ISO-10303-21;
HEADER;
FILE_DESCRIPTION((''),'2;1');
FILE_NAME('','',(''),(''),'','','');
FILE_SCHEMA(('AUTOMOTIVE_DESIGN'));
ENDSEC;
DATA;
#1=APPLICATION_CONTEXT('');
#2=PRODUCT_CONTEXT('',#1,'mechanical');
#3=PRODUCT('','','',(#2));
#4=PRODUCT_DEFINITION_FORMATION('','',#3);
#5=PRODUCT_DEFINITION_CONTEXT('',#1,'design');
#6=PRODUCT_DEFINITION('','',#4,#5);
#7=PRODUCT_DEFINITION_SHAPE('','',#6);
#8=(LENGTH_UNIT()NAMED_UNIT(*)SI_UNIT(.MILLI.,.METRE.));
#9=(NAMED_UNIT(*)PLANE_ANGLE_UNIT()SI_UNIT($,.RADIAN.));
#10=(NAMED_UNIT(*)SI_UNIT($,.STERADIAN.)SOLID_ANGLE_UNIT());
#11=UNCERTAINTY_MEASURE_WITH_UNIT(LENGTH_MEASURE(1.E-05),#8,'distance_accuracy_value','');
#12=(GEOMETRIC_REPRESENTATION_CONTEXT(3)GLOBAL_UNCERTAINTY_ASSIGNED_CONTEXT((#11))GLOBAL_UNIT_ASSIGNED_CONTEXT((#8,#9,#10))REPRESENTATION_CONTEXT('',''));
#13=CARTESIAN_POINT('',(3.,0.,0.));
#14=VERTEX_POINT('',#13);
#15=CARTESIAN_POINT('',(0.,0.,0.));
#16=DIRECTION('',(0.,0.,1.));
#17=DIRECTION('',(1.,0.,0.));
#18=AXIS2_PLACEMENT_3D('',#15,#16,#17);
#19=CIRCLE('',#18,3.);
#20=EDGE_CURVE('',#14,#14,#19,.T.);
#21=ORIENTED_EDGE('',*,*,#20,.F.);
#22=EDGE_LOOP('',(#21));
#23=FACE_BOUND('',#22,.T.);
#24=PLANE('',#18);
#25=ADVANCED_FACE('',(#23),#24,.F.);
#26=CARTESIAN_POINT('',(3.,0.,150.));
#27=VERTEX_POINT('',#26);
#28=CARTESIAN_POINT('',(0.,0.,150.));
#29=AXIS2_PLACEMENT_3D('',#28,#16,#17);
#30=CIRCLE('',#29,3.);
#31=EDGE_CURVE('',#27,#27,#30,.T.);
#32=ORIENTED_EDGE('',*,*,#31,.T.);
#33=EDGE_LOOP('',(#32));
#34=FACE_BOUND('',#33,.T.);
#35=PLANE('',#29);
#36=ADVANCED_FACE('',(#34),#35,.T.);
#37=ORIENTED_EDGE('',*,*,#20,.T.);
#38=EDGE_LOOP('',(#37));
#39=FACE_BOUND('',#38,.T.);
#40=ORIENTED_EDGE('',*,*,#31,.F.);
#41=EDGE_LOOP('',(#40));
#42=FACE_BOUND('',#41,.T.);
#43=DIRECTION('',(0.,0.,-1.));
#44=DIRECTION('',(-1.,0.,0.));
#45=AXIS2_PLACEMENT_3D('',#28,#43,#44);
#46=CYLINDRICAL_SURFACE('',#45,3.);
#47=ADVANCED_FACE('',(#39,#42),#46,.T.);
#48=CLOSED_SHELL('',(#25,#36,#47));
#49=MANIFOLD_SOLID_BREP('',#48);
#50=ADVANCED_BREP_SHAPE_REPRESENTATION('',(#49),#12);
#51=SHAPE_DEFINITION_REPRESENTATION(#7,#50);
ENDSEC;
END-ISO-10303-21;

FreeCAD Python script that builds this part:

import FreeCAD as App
import Part
import Sketcher
from FreeCAD import Vector

doc = App.newDocument("Part")
params = doc.addObject("Spreadsheet::Sheet", "Params")
for row, (alias, value) in enumerate([
    ("sketch1_diameter", "6 mm"),
    ("pad1_length", "150 mm"),
], start=1):
    params.set(f"A{row}", alias)
    params.set(f"B{row}", "=" + value)
    params.setAlias(f"B{row}", alias)

body = doc.addObject("PartDesign::Body", "Body")

sketch1 = doc.addObject("Sketcher::SketchObject", "Sketch")
body.addObject(sketch1)
sketch1.AttachmentSupport = (doc.XY_Plane, [""])
sketch1.MapMode = "FlatFace"
sketch1.addGeometry(Part.Circle(Vector(0, 0, 0), Vector(0, 0, 1), 3), False)
sketch1.addConstraint([
    Sketcher.Constraint("Coincident", 0, 3, -1, 1),
    Sketcher.Constraint("Diameter", 0, 6.0),
])
sketch1.setExpression("Constraints[1]", "Params.sketch1_diameter")
pad1 = doc.addObject("PartDesign::Pad", "Pad")
body.addObject(pad1)
pad1.Profile = sketch1
pad1.setExpression("Length", "Params.pad1_length")

doc.recompute()
